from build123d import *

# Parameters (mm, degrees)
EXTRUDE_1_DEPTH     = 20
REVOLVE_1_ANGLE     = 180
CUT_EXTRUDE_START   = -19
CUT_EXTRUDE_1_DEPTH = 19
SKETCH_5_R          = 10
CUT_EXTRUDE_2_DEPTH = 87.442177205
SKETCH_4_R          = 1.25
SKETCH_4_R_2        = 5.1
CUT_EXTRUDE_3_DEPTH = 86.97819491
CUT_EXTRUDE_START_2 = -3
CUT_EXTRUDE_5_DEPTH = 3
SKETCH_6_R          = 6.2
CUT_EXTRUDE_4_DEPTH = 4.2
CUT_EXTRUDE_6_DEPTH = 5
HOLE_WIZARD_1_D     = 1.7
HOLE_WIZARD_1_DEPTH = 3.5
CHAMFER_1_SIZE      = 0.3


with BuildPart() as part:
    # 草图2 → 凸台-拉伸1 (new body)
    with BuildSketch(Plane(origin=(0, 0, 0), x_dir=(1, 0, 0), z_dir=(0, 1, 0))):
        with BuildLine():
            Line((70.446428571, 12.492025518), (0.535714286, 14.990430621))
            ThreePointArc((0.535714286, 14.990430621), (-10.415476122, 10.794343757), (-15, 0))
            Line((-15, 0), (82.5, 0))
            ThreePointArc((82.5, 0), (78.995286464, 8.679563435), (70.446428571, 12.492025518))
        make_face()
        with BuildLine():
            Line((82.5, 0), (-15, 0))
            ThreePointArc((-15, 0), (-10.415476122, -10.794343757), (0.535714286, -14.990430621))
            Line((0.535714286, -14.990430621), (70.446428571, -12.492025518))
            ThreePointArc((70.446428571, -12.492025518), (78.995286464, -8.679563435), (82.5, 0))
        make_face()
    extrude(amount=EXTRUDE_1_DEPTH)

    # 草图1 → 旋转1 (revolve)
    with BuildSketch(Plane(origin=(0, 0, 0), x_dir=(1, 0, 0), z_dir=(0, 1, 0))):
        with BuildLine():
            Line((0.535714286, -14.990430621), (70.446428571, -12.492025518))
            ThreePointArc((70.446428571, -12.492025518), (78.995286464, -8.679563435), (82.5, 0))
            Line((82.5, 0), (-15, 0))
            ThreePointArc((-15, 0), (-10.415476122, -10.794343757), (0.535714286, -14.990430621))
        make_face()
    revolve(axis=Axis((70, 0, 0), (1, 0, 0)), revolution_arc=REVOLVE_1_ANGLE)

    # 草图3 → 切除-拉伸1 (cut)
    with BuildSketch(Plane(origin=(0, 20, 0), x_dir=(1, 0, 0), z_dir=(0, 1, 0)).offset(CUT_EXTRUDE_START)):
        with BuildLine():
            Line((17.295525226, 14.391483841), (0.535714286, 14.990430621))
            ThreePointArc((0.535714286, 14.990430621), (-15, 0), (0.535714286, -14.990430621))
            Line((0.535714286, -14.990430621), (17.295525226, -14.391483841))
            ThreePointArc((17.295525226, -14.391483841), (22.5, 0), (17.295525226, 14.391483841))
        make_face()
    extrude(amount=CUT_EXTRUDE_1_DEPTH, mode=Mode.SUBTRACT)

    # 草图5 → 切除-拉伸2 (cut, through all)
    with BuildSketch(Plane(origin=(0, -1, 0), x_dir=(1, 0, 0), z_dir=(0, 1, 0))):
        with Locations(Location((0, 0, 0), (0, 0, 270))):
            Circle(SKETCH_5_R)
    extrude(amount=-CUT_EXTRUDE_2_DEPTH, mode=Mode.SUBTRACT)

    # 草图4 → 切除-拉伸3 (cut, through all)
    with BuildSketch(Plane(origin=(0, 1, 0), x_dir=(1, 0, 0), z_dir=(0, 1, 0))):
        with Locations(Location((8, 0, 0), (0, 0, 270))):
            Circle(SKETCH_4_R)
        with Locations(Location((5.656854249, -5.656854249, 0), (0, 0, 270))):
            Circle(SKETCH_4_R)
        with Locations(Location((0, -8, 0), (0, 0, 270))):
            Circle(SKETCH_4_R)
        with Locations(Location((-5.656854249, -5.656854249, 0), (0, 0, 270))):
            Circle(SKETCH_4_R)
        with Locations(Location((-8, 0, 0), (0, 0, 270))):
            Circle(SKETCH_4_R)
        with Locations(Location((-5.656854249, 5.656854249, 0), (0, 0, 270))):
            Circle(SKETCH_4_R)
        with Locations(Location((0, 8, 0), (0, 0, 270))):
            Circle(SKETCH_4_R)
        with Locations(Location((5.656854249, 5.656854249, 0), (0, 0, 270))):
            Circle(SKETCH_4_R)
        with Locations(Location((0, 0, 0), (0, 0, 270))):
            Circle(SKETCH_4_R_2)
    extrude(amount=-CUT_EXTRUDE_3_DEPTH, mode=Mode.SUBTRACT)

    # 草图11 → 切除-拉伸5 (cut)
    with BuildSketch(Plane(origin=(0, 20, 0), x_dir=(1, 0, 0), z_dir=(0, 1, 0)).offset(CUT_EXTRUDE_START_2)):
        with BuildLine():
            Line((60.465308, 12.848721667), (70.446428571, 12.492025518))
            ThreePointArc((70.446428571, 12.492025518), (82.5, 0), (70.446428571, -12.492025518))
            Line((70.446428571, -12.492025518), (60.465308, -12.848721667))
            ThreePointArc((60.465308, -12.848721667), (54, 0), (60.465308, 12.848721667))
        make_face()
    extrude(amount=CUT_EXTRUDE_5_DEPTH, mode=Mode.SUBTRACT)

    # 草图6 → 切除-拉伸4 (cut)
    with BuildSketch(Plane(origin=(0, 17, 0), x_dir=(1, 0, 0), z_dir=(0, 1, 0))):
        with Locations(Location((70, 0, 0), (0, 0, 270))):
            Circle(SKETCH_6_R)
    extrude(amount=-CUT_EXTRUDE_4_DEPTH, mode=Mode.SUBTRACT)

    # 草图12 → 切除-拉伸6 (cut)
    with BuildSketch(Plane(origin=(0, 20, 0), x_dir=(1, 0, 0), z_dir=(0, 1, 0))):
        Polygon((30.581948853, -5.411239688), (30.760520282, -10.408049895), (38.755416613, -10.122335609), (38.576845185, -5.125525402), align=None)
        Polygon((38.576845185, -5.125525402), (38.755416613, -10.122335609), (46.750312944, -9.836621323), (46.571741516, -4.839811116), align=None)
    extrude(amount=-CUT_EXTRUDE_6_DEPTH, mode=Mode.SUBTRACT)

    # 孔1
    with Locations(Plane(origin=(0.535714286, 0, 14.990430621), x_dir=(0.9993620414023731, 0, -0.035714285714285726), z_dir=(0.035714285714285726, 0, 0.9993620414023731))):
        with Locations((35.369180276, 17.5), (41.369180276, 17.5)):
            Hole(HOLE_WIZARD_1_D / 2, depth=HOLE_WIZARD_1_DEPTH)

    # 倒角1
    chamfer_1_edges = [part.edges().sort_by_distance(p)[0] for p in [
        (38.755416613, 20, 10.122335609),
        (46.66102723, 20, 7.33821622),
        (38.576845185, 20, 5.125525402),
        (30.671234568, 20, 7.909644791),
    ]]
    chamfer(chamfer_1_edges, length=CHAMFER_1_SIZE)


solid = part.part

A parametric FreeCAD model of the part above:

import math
import FreeCAD as App
import Part
import Sketcher

V = App.Vector
Q = App.Units.Quantity


def edges_at(feature, points):
    """Names of the edges that pass closest to the given points."""
    edges = feature.Shape.Edges
    near = lambda p: min(range(len(edges)), key=lambda i: edges[i].distToShape(Part.Vertex(*p))[0])
    return sorted({f"Edge{near(p) + 1}" for p in points})

doc = App.newDocument("Part")
body = doc.addObject("PartDesign::Body", "Body")

# Sketch on XZ plane
sketch1 = doc.addObject("Sketcher::SketchObject", "Sketch")
body.addObject(sketch1)
sketch1.AttachmentSupport = (doc.XZ_Plane, [""])
sketch1.MapMode = "FlatFace"
sketch1.addGeometry(Part.LineSegment(V(70, -12, 0), V(1, -15, 0)), False)
sketch1.addGeometry(Part.ArcOfCircle(Part.Circle(V(0, 0, 0), V(0, 0, 1), 15), math.radians(-180), math.radians(-88)), False)
sketch1.addGeometry(Part.ArcOfCircle(Part.Circle(V(0, 0, 0), V(0, 0, 1), 15), math.radians(88), math.radians(180)), False)
sketch1.addGeometry(Part.LineSegment(V(1, 15, 0), V(70, 12, 0)), False)
sketch1.addGeometry(Part.ArcOfCircle(Part.Circle(V(70, 0, 0), V(0, 0, 1), 13), math.radians(0), math.radians(88)), False)
sketch1.addGeometry(Part.ArcOfCircle(Part.Circle(V(70, 0, 0), V(0, 0, 1), 13), math.radians(-88), math.radians(0)), False)
sketch1.addConstraint(Sketcher.Constraint("Tangent", 0, 2, 1, 2))
sketch1.addConstraint(Sketcher.Constraint("Tangent", 1, 1, 2, 2))
sketch1.addConstraint(Sketcher.Constraint("Tangent", 2, 1, 3, 1))
sketch1.addConstraint(Sketcher.Constraint("Tangent", 3, 2, 4, 2))
sketch1.addConstraint(Sketcher.Constraint("Tangent", 4, 1, 5, 2))
sketch1.addConstraint(Sketcher.Constraint("Tangent", 5, 1, 0, 1))
sketch1.addConstraint(Sketcher.Constraint("Coincident", 1, 3, -1, 1))
sketch1.addConstraint(Sketcher.Constraint("Equal", 1, 2))
sketch1.addConstraint(Sketcher.Constraint("Equal", 4, 5))
sketch1.addConstraint(Sketcher.Constraint("PointOnObject", 4, 3, -1))
sketch1.addConstraint(Sketcher.Constraint("PointOnObject", 1, 1, -1))
sketch1.addConstraint(Sketcher.Constraint("PointOnObject", 4, 1, -1))
sketch1.addConstraint(Sketcher.Constraint("Radius", 1, Q("15 mm")))
sketch1.addConstraint(Sketcher.Constraint("Radius", 4, Q("12.5 mm")))
sketch1.addConstraint(Sketcher.Constraint("DistanceX", -1, 1, 4, 3, Q("70 mm")))
pad1 = doc.addObject("PartDesign::Pad", "Pad")
body.addObject(pad1)
pad1.Profile = sketch1
pad1.Length = 20
pad1.Reversed = True

# Sketch on XZ plane
sketch2 = doc.addObject("Sketcher::SketchObject", "Sketch001")
body.addObject(sketch2)
sketch2.AttachmentSupport = (doc.XZ_Plane, [""])
sketch2.MapMode = "FlatFace"
sketch2.addGeometry(Part.LineSegment(V(1, 15, 0), V(70, 12, 0)), False)
sketch2.addGeometry(Part.ArcOfCircle(Part.Circle(V(70, 0, 0), V(0, 0, 1), 13), math.radians(0), math.radians(88)), False)
sketch2.addGeometry(Part.LineSegment(V(82, 0, 0), V(-15, 0, 0)), False)
sketch2.addGeometry(Part.ArcOfCircle(Part.Circle(V(0, 0, 0), V(0, 0, 1), 15), math.radians(88), math.radians(180)), False)
sketch2.addConstraint(Sketcher.Constraint("Tangent", 0, 2, 1, 2))
sketch2.addConstraint(Sketcher.Constraint("Coincident", 1, 1, 2, 1))
sketch2.addConstraint(Sketcher.Constraint("Coincident", 2, 2, 3, 2))
sketch2.addConstraint(Sketcher.Constraint("Tangent", 3, 1, 0, 1))
sketch2.addConstraint(Sketcher.Constraint("Horizontal", 2))
sketch2.addConstraint(Sketcher.Constraint("Coincident", 3, 3, -1, 1))
sketch2.addConstraint(Sketcher.Constraint("PointOnObject", 1, 3, -1))
sketch2.addConstraint(Sketcher.Constraint("PointOnObject", 1, 1, -1))
sketch2.addConstraint(Sketcher.Constraint("Radius", 3, Q("15 mm")))
sketch2.addConstraint(Sketcher.Constraint("Radius", 1, Q("12.5 mm")))
sketch2.addConstraint(Sketcher.Constraint("DistanceX", 2, 2, 2, 1, Q("97.5 mm")))
revolution = doc.addObject("PartDesign::Revolution", "Revolution")
body.addObject(revolution)
revolution.Profile = sketch2
revolution.ReferenceAxis = (sketch2, ["H_Axis"])
revolution.Angle = 180

# Sketch on XZ plane
sketch3 = doc.addObject("Sketcher::SketchObject", "Sketch002")
body.addObject(sketch3)
sketch3.AttachmentSupport = (doc.XZ_Plane, [""])
sketch3.MapMode = "FlatFace"
sketch3.AttachmentOffset = App.Placement(V(0, 0, -1), App.Rotation())
sketch3.addGeometry(Part.LineSegment(V(17, -14, 0), V(1, -15, 0)), False)
sketch3.addGeometry(Part.ArcOfCircle(Part.Circle(V(0, 0, 0), V(0, 0, 1), 15), math.radians(88), math.radians(272)), False)
sketch3.addGeometry(Part.LineSegment(V(1, 15, 0), V(17, 14, 0)), False)
sketch3.addGeometry(Part.ArcOfCircle(Part.Circle(V(0, 0, 0), V(0, 0, 1), 22), math.radians(-40), math.radians(40)), False)
sketch3.addConstraint(Sketcher.Constraint("Tangent", 0, 2, 1, 2))
sketch3.addConstraint(Sketcher.Constraint("Tangent", 1, 1, 2, 1))
sketch3.addConstraint(Sketcher.Constraint("Coincident", 2, 2, 3, 2))
sketch3.addConstraint(Sketcher.Constraint("Coincident", 3, 1, 0, 1))
sketch3.addConstraint(Sketcher.Constraint("Coincident", 1, 3, -1, 1))
sketch3.addConstraint(Sketcher.Constraint("Coincident", 3, 3, -1, 1))
sketch3.addConstraint(Sketcher.Constraint("Vertical", 0, 2, 1, 1))
sketch3.addConstraint(Sketcher.Constraint("Radius", 1, Q("15 mm")))
sketch3.addConstraint(Sketcher.Constraint("Radius", 3, Q("22.5 mm")))
sketch3.addConstraint(Sketcher.Constraint("DistanceY", 0, 2, -1, 1, Q("14.990431 mm")))
pocket1 = doc.addObject("PartDesign::Pocket", "Pocket")
body.addObject(pocket1)
pocket1.Profile = sketch3
pocket1.Length = 19

# Sketch on XZ plane
sketch4 = doc.addObject("Sketcher::SketchObject", "Sketch003")
body.addObject(sketch4)
sketch4.AttachmentSupport = (doc.XZ_Plane, [""])
sketch4.MapMode = "FlatFace"
sketch4.AttachmentOffset = App.Placement(V(0, 0, 1), App.Rotation())
sketch4.addGeometry(Part.Circle(V(0, 0, 0), V(0, 0, 1), 10), False)
sketch4.addConstraint(Sketcher.Constraint("Coincident", 0, 3, -1, 1))
sketch4.addConstraint(Sketcher.Constraint("Diameter", 0, Q("20 mm")))
pocket2 = doc.addObject("PartDesign::Pocket", "Pocket001")
body.addObject(pocket2)
pocket2.Profile = sketch4
pocket2.Type = "ThroughAll"
pocket2.Reversed = True

# Sketch on XZ plane
sketch5 = doc.addObject("Sketcher::SketchObject", "Sketch004")
body.addObject(sketch5)
sketch5.AttachmentSupport = (doc.XZ_Plane, [""])
sketch5.MapMode = "FlatFace"
sketch5.AttachmentOffset = App.Placement(V(0, 0, -1), App.Rotation())
sketch5.addGeometry(Part.Circle(V(8, 0, 0), V(0, 0, 1), 1.2), False)
sketch5.addGeometry(Part.Circle(V(5.7, 5.7, 0), V(0, 0, 1), 1.2), False)
sketch5.addGeometry(Part.Circle(V(0, 8, 0), V(0, 0, 1), 1.2), False)
sketch5.addGeometry(Part.Circle(V(-5.7, 5.7, 0), V(0, 0, 1), 1.2), False)
sketch5.addGeometry(Part.Circle(V(-8, 0, 0), V(0, 0, 1), 1.2), False)
sketch5.addGeometry(Part.Circle(V(-5.7, -5.7, 0), V(0, 0, 1), 1.2), False)
sketch5.addGeometry(Part.Circle(V(0, -8, 0), V(0, 0, 1), 1.2), False)
sketch5.addGeometry(Part.Circle(V(5.7, -5.7, 0), V(0, 0, 1), 1.2), False)
sketch5.addGeometry(Part.Circle(V(0, 0, 0), V(0, 0, 1), 5.1), False)
sketch5.addConstraint(Sketcher.Constraint("Coincident", 8, 3, -1, 1))
sketch5.addConstraint(Sketcher.Constraint("Equal", 0, 1))
sketch5.addConstraint(Sketcher.Constraint("Equal", 1, 2))
sketch5.addConstraint(Sketcher.Constraint("Equal", 2, 3))
sketch5.addConstraint(Sketcher.Constraint("Equal", 3, 4))
sketch5.addConstraint(Sketcher.Constraint("Equal", 4, 5))
sketch5.addConstraint(Sketcher.Constraint("Equal", 5, 6))
sketch5.addConstraint(Sketcher.Constraint("Equal", 6, 7))
sketch5.addConstraint(Sketcher.Constraint("Symmetric", 0, 3, 4, 3, -1, 1))
sketch5.addConstraint(Sketcher.Constraint("Symmetric", 1, 3, 5, 3, -1, 1))
sketch5.addConstraint(Sketcher.Constraint("Symmetric", 2, 3, 6, 3, -1, 1))
sketch5.addConstraint(Sketcher.Constraint("Symmetric", 3, 3, 7, 3, -1, 1))
sketch5.addConstraint(Sketcher.Constraint("Symmetric", 1, 3, 3, 3, -2))
sketch5.addConstraint(Sketcher.Constraint("PointOnObject", 0, 3, -1))
sketch5.addConstraint(Sketcher.Constraint("PointOnObject", 2, 3, -2))
sketch5.addConstraint(Sketcher.Constraint("Diameter", 0, Q("2.5 mm")))
sketch5.addConstraint(Sketcher.Constraint("Diameter", 8, Q("10.2 mm")))
sketch5.addConstraint(Sketcher.Constraint("DistanceX", -1, 1, 0, 3, Q("8 mm")))
sketch5.addConstraint(Sketcher.Constraint("DistanceY", -1, 1, 2, 3, Q("8 mm")))
sketch5.addConstraint(Sketcher.Constraint("DistanceX", 3, 3, 1, 3, Q("11.313708 mm")))
sketch5.addConstraint(Sketcher.Constraint("DistanceY", 5, 3, 3, 3, Q("11.313708 mm")))
pocket3 = doc.addObject("PartDesign::Pocket", "Pocket002")
body.addObject(pocket3)
pocket3.Profile = sketch5
pocket3.Type = "ThroughAll"
pocket3.Reversed = True

# Sketch on XZ plane
sketch6 = doc.addObject("Sketcher::SketchObject", "Sketch005")
body.addObject(sketch6)
sketch6.AttachmentSupport = (doc.XZ_Plane, [""])
sketch6.MapMode = "FlatFace"
sketch6.AttachmentOffset = App.Placement(V(0, 0, -17), App.Rotation())
sketch6.addGeometry(Part.LineSegment(V(70, -12, 0), V(60, -13, 0)), False)
sketch6.addGeometry(Part.ArcOfCircle(Part.Circle(V(70, 0, 0), V(0, 0, 1), 16), math.radians(127), math.radians(233)), False)
sketch6.addGeometry(Part.LineSegment(V(60, 13, 0), V(70, 12, 0)), False)
sketch6.addGeometry(Part.ArcOfCircle(Part.Circle(V(70, 0, 0), V(0, 0, 1), 12), math.radians(-88), math.radians(88)), False)
sketch6.addConstraint(Sketcher.Constraint("Coincident", 0, 2, 1, 2))
sketch6.addConstraint(Sketcher.Constraint("Coincident", 1, 1, 2, 1))
sketch6.addConstraint(Sketcher.Constraint("Tangent", 2, 2, 3, 2))
sketch6.addConstraint(Sketcher.Constraint("Tangent", 3, 1, 0, 1))
sketch6.addConstraint(Sketcher.Constraint("Coincident", 3, 3, 1, 3))
sketch6.addConstraint(Sketcher.Constraint("Symmetric", 0, 2, 1, 1, -1))
sketch6.addConstraint(Sketcher.Constraint("Radius", 1, Q("16 mm")))
sketch6.addConstraint(Sketcher.Constraint("Radius", 3, Q("12.5 mm")))
sketch6.addConstraint(Sketcher.Constraint("DistanceX", -1, 1, 1, 3, Q("70 mm")))
sketch6.addConstraint(Sketcher.Constraint("DistanceY", 0, 2, -1, 1, Q("12.848722 mm")))
pocket4 = doc.addObject("PartDesign::Pocket", "Pocket003")
body.addObject(pocket4)
pocket4.Profile = sketch6
pocket4.Length = 3

# Sketch on XZ plane
sketch7 = doc.addObject("Sketcher::SketchObject", "Sketch006")
body.addObject(sketch7)
sketch7.AttachmentSupport = (doc.XZ_Plane, [""])
sketch7.MapMode = "FlatFace"
sketch7.AttachmentOffset = App.Placement(V(0, 0, -17), App.Rotation())
sketch7.addGeometry(Part.Circle(V(70, 0, 0), V(0, 0, 1), 6), False)
sketch7.addConstraint(Sketcher.Constraint("PointOnObject", 0, 3, -1))
sketch7.addConstraint(Sketcher.Constraint("Diameter", 0, Q("12.4 mm")))
sketch7.addConstraint(Sketcher.Constraint("DistanceX", -1, 1, 0, 3, Q("70 mm")))
pocket5 = doc.addObject("PartDesign::Pocket", "Pocket004")
body.addObject(pocket5)
pocket5.Profile = sketch7
pocket5.Length = 4.2
pocket5.Reversed = True

# Sketch on XZ plane
sketch8 = doc.addObject("Sketcher::SketchObject", "Sketch007")
body.addObject(sketch8)
sketch8.AttachmentSupport = (doc.XZ_Plane, [""])
sketch8.MapMode = "FlatFace"
sketch8.AttachmentOffset = App.Placement(V(0, 0, -20), App.Rotation())
sketch8.addGeometry(Part.LineSegment(V(30.6, 5.4, 0), V(30.8, 10.4, 0)), False)
sketch8.addGeometry(Part.LineSegment(V(30.8, 10.4, 0), V(46.8, 9.8, 0)), False)
sketch8.addGeometry(Part.LineSegment(V(46.8, 9.8, 0), V(46.6, 4.8, 0)), False)
sketch8.addGeometry(Part.LineSegment(V(46.6, 4.8, 0), V(38.6, 5.1, 0)), False)
sketch8.addGeometry(Part.LineSegment(V(38.6, 5.1, 0), V(30.6, 5.4, 0)), False)
sketch8.addConstraint(Sketcher.Constraint("Coincident", 0, 2, 1, 1))
sketch8.addConstraint(Sketcher.Constraint("Coincident", 1, 2, 2, 1))
sketch8.addConstraint(Sketcher.Constraint("Coincident", 2, 2, 3, 1))
sketch8.addConstraint(Sketcher.Constraint("Coincident", 3, 2, 4, 1))
sketch8.addConstraint(Sketcher.Constraint("Coincident", 4, 2, 0, 1))
sketch8.addConstraint(Sketcher.Constraint("Perpendicular", 0, 1))
sketch8.addConstraint(Sketcher.Constraint("Perpendicular", 1, 2))
sketch8.addConstraint(Sketcher.Constraint("Perpendicular", 2, 3))
sketch8.addConstraint(Sketcher.Constraint("Parallel", 3, 4))
sketch8.addConstraint(Sketcher.Constraint("Equal", 3, 4))
sketch8.addConstraint(Sketcher.Constraint("Distance", 0, Q("5 mm")))
sketch8.addConstraint(Sketcher.Constraint("Distance", 1, Q("16 mm")))
sketch8.addConstraint(Sketcher.Constraint("DistanceX", -1, 1, 0, 2, Q("30.76052 mm")))
sketch8.addConstraint(Sketcher.Constraint("DistanceY", -1, 1, 0, 2, Q("10.40805 mm")))
sketch8.addConstraint(Sketcher.Constraint("DistanceY", -1, 1, 1, 2, Q("9.836621 mm")))
pocket6 = doc.addObject("PartDesign::Pocket", "Pocket005")
body.addObject(pocket6)
pocket6.Profile = sketch8
pocket6.Length = 5
pocket6.Reversed = True

# Sketch on an angled plane
sketch9 = doc.addObject("Sketcher::SketchObject", "Sketch008")
body.addObject(sketch9)
sketch9.Placement = App.Placement(V(0.535714, 0, 14.990431), App.Rotation(V(0.999362041, 0, -0.035714286), V(0, 0.999999999, 0), V(0.035714286, 0, 0.999362041), "ZXY"))
sketch9.addGeometry(Part.Circle(V(35.4, 17.5, 0), V(0, 0, 1), 0.8), False)
sketch9.addGeometry(Part.Circle(V(41.4, 17.5, 0), V(0, 0, 1), 0.8), False)
sketch9.addConstraint(Sketcher.Constraint("Equal", 0, 1))
sketch9.addConstraint(Sketcher.Constraint("Horizontal", 0, 3, 1, 3))
sketch9.addConstraint(Sketcher.Constraint("Diameter", 0, Q("1.7 mm")))
sketch9.addConstraint(Sketcher.Constraint("DistanceX", 0, 3, 1, 3, Q("6 mm")))
sketch9.addConstraint(Sketcher.Constraint("DistanceY", -1, 1, 0, 3, Q("17.5 mm")))
sketch9.addConstraint(Sketcher.Constraint("DistanceX", -1, 1, 0, 3, Q("35.36918 mm")))
doc.recompute()
hole = doc.addObject("PartDesign::Hole", "Hole")
body.addObject(hole)
hole.Profile = sketch9
hole.ThreadType = "None"
hole.Diameter = 1.7
hole.DepthType = "Dimension"
hole.Depth = 3.5
hole.DrillPoint = "Flat"
doc.recompute()

chamfer = doc.addObject("PartDesign::Chamfer", "Chamfer")
body.addObject(chamfer)
chamfer.Base = (hole, edges_at(hole, [
    (38.755, 20, 10.122),
    (46.661, 20, 7.338),
    (42.574, 20, 4.983),
    (30.671, 20, 7.91),
]))
chamfer.Size = 0.3

doc.recompute()
